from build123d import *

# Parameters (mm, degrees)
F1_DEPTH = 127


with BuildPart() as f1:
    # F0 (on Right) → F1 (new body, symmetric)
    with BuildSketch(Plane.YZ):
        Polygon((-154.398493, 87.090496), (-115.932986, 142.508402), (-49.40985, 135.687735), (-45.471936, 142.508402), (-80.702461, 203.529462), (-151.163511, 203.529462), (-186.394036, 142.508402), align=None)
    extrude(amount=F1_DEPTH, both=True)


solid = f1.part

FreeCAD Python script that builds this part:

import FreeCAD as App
import Part
import Sketcher

V = App.Vector
Q = App.Units.Quantity

doc = App.newDocument("Part")
body = doc.addObject("PartDesign::Body", "Body")

sketch1 = body.newObject("Sketcher::SketchObject", "Sketch")
sketch1.AttachmentSupport = (doc.getObject("YZ_Plane"), [""])
sketch1.MapMode = "FlatFace"
sketch1.addGeometry([
    Part.LineSegment(V(-154, 87, 0), V(-116, 143, 0)),
    Part.LineSegment(V(-116, 143, 0), V(-49, 136, 0)),
    Part.LineSegment(V(-49, 136, 0), V(-45, 143, 0)),
    Part.LineSegment(V(-45, 143, 0), V(-81, 204, 0)),
    Part.LineSegment(V(-81, 204, 0), V(-151, 204, 0)),
    Part.LineSegment(V(-151, 204, 0), V(-186, 143, 0)),
    Part.LineSegment(V(-186, 143, 0), V(-154, 87, 0)),
], False)
sketch1.addConstraint([
    Sketcher.Constraint("Coincident", 0, 2, 1, 1),
    Sketcher.Constraint("Coincident", 1, 2, 2, 1),
    Sketcher.Constraint("Coincident", 2, 2, 3, 1),
    Sketcher.Constraint("Coincident", 3, 2, 4, 1),
    Sketcher.Constraint("Coincident", 4, 2, 5, 1),
    Sketcher.Constraint("Coincident", 5, 2, 6, 1),
    Sketcher.Constraint("Coincident", 6, 2, 0, 1),
    Sketcher.Constraint("Horizontal", 4),
    Sketcher.Constraint("Parallel", 2, 5),
    Sketcher.Constraint("Parallel", 3, 6),
    Sketcher.Constraint("Horizontal", 0, 2, 2, 2),
    Sketcher.Constraint("Horizontal", 2, 2, 5, 2),
    Sketcher.Constraint("Equal", 3, 5),
    Sketcher.Constraint("Angle", 2, Q("60 deg")),
    Sketcher.Constraint("DistanceX", 4, 2, 4, 1, 70.46105),
    Sketcher.Constraint("DistanceY", -1, 1, 0, 2, 142.508402),
    Sketcher.Constraint("DistanceX", 5, 2, 2, 2, 140.9221),
    Sketcher.Constraint("Distance", 0, 67.459169),
    Sketcher.Constraint("DistanceX", 1, 2, -1, 1, 49.40985),
    Sketcher.Constraint("DistanceX", 3, 2, -1, 1, 80.702461),
    Sketcher.Constraint("DistanceX", 0, 2, 2, 2, 70.46105),
])
pad1 = body.newObject("PartDesign::Pad", "Pad")
pad1.Profile = sketch1
pad1.Length = Q("10 in")
pad1.Midplane = True

doc.recompute()
